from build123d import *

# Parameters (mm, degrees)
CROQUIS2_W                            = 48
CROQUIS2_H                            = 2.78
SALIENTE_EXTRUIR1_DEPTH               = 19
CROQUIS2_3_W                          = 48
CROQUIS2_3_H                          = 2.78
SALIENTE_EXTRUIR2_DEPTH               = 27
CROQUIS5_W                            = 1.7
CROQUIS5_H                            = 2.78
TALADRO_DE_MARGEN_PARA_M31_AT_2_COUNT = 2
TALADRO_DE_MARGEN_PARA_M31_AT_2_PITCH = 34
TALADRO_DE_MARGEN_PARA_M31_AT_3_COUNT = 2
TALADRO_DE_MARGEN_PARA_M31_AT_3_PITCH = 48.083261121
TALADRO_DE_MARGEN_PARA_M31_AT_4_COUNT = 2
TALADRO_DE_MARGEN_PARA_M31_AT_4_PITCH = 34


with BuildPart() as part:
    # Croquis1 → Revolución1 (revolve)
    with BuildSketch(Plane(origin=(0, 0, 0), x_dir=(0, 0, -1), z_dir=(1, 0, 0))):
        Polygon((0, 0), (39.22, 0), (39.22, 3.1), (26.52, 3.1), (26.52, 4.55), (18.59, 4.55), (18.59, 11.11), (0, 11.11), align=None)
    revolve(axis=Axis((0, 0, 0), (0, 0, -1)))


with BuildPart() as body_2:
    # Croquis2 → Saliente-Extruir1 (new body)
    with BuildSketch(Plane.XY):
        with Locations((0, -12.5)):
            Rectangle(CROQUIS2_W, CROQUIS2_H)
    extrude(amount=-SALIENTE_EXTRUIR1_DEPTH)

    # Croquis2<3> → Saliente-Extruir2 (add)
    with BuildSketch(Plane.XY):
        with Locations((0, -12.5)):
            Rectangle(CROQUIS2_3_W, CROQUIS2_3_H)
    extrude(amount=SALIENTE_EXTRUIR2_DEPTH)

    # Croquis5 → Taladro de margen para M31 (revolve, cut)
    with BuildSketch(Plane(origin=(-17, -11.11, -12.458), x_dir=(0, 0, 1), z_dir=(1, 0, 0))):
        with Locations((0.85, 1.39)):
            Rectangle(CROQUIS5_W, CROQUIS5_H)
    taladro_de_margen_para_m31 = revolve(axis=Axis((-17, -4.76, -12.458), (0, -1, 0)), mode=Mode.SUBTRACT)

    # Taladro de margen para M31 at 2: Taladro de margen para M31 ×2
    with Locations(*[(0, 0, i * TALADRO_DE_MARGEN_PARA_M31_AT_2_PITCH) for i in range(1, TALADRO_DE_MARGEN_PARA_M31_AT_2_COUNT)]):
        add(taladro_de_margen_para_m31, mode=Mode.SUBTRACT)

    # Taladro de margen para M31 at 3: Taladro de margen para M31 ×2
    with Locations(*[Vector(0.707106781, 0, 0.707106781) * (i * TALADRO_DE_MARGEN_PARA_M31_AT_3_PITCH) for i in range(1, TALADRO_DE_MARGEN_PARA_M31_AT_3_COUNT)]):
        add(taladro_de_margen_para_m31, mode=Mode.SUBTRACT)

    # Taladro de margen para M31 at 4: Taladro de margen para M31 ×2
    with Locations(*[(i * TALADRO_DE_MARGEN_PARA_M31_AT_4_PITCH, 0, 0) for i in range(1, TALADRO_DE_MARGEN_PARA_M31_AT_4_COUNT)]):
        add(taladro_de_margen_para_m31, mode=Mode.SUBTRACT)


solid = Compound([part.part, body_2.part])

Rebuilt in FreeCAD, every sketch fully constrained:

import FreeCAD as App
import Part
import Sketcher


def add_polygon(sketch, points):
    """Adds a closed chain of lines whose ends are joined by coincident constraints."""
    first, n = sketch.GeometryCount, len(points)
    for a, b in zip(points, points[1:] + points[:1]):
        sketch.addGeometry(Part.LineSegment(App.Vector(*a, 0), App.Vector(*b, 0)), False)
    for i in range(n):
        sketch.addConstraint(Sketcher.Constraint("Coincident", first + i, 2, first + (i + 1) % n, 1))

doc = App.newDocument("Part")
params = doc.addObject("Spreadsheet::Sheet", "Params")
for row, (alias, value) in enumerate([
    ("sketch1_width", "3.1 mm"),
    ("sketch1_height", "12.7 mm"),
    ("sketch1_width2", "1.45 mm"),
    ("sketch1_width3", "6.56 mm"),
    ("sketch1_height2", "39.22 mm"),
    ("revolution_angle", "360 deg"),
    ("sketch2_width", "48 mm"),
    ("sketch2_height", "2.78 mm"),
    ("pad1_length", "19 mm"),
    ("sketch3_width", "48 mm"),
    ("sketch3_height", "2.78 mm"),
    ("pad2_length", "27 mm"),
    ("sketch4_height", "1.7 mm"),
    ("sketch4_width", "2.78 mm"),
    ("groove_angle", "360 deg"),
    ("linearpattern_pitch", "34 mm"),
    ("linearpattern2_pitch", "48.083261 mm"),
    ("linearpattern3_pitch", "34 mm"),
], start=1):
    params.set(f"A{row}", alias)
    params.set(f"B{row}", "=" + value)
    params.setAlias(f"B{row}", alias)

body = doc.addObject("PartDesign::Body", "Body")

# Sketch on YZ plane
sketch1 = body.newObject("Sketcher::SketchObject", "Sketch")
sketch1.AttachmentSupport = (doc.getObject("YZ_Plane"), [""])
sketch1.MapMode = "FlatFace"
add_polygon(sketch1, [(0, 0), (0, -39.2), (3.1, -39.2), (3.1, -26.5), (4.5, -26.5), (4.5, -18.6), (11.1, -18.6), (11.1, 0)])  # lines 0-7
sketch1.addConstraint(Sketcher.Constraint("Vertical", 0))
sketch1.addConstraint(Sketcher.Constraint("Horizontal", 1))
sketch1.addConstraint(Sketcher.Constraint("Vertical", 2))
sketch1.addConstraint(Sketcher.Constraint("Horizontal", 3))
sketch1.addConstraint(Sketcher.Constraint("Vertical", 4))
sketch1.addConstraint(Sketcher.Constraint("Horizontal", 5))
sketch1.addConstraint(Sketcher.Constraint("Vertical", 6))
sketch1.addConstraint(Sketcher.Constraint("Horizontal", 7))
sketch1.addConstraint(Sketcher.Constraint("Coincident", 7, 2, -1, 1))
sketch1.addConstraint(Sketcher.Constraint("DistanceX", 1, 1, 1, 2, 3.1))
sketch1.addConstraint(Sketcher.Constraint("DistanceY", 2, 1, 2, 2, 12.7))
sketch1.addConstraint(Sketcher.Constraint("DistanceX", 3, 1, 3, 2, 1.45))
sketch1.addConstraint(Sketcher.Constraint("DistanceX", 5, 1, 5, 2, 6.56))
sketch1.addConstraint(Sketcher.Constraint("DistanceY", 0, 2, 0, 1, 39.22))
sketch1.addConstraint(Sketcher.Constraint("DistanceY", 4, 1, 4, 2, 7.93))
sketch1.setExpression("Constraints[17]", "Params.sketch1_width")
sketch1.setExpression("Constraints[18]", "Params.sketch1_height")
sketch1.setExpression("Constraints[19]", "Params.sketch1_width2")
sketch1.setExpression("Constraints[20]", "Params.sketch1_width3")
sketch1.setExpression("Constraints[21]", "Params.sketch1_height2")
revolution = body.newObject("PartDesign::Revolution", "Revolution")
revolution.Profile = sketch1
revolution.ReferenceAxis = (sketch1, ["V_Axis"])
revolution.setExpression("Angle", "Params.revolution_angle")
body2 = doc.addObject("PartDesign::Body", "Body001")

# Sketch on XY plane
sketch2 = body2.newObject("Sketcher::SketchObject", "Sketch001")
sketch2.AttachmentSupport = (doc.getObject("XY_Plane001"), [""])
sketch2.MapMode = "FlatFace"
add_polygon(sketch2, [(-24, -11.1), (-24, -13.9), (24, -13.9), (24, -11.1)])  # lines 0-3
sketch2.addConstraint(Sketcher.Constraint("Vertical", 0))
sketch2.addConstraint(Sketcher.Constraint("Horizontal", 1))
sketch2.addConstraint(Sketcher.Constraint("Vertical", 2))
sketch2.addConstraint(Sketcher.Constraint("Horizontal", 3))
sketch2.addConstraint(Sketcher.Constraint("DistanceX", 1, 1, 1, 2, 48.0))
sketch2.addConstraint(Sketcher.Constraint("DistanceX", 0, 2, -1, 1, 24.0))
sketch2.addConstraint(Sketcher.Constraint("DistanceY", 0, 2, 0, 1, 2.78))
sketch2.addConstraint(Sketcher.Constraint("DistanceY", 0, 2, -1, 1, 13.89))
sketch2.setExpression("Constraints[8]", "Params.sketch2_width")
sketch2.setExpression("Constraints[10]", "Params.sketch2_height")
pad1 = body2.newObject("PartDesign::Pad", "Pad")
pad1.Profile = sketch2
pad1.setExpression("Length", "Params.pad1_length")
pad1.Reversed = True

# Sketch on XY plane
sketch3 = body2.newObject("Sketcher::SketchObject", "Sketch002")
sketch3.AttachmentSupport = (doc.getObject("XY_Plane001"), [""])
sketch3.MapMode = "FlatFace"
add_polygon(sketch3, [(-24, -11.1), (-24, -13.9), (24, -13.9), (24, -11.1)])  # lines 0-3
sketch3.addConstraint(Sketcher.Constraint("Vertical", 0))
sketch3.addConstraint(Sketcher.Constraint("Horizontal", 1))
sketch3.addConstraint(Sketcher.Constraint("Vertical", 2))
sketch3.addConstraint(Sketcher.Constraint("Horizontal", 3))
sketch3.addConstraint(Sketcher.Constraint("DistanceX", 1, 1, 1, 2, 48.0))
sketch3.addConstraint(Sketcher.Constraint("DistanceX", 0, 2, -1, 1, 24.0))
sketch3.addConstraint(Sketcher.Constraint("DistanceY", 0, 2, 0, 1, 2.78))
sketch3.addConstraint(Sketcher.Constraint("DistanceY", 0, 2, -1, 1, 13.89))
sketch3.setExpression("Constraints[8]", "Params.sketch3_width")
sketch3.setExpression("Constraints[10]", "Params.sketch3_height")
pad2 = body2.newObject("PartDesign::Pad", "Pad001")
pad2.Profile = sketch3
pad2.setExpression("Length", "Params.pad2_length")

# Sketch on YZ plane
sketch4 = body2.newObject("Sketcher::SketchObject", "Sketch003")
sketch4.AttachmentSupport = (doc.getObject("YZ_Plane001"), [""])
sketch4.MapMode = "FlatFace"
sketch4.AttachmentOffset = App.Placement(App.Vector(0, 0, -17), App.Rotation())
add_polygon(sketch4, [(-13.9, -12.5), (-11.1, -12.5), (-11.1, -10.8), (-13.9, -10.8)])  # lines 0-3
sketch4.addGeometry(Part.LineSegment(App.Vector(-11.1, -12.5, 0), App.Vector(-13.9, -12.5, 0)), True)  # axis
sketch4.addConstraint(Sketcher.Constraint("Horizontal", 0))
sketch4.addConstraint(Sketcher.Constraint("Vertical", 1))
sketch4.addConstraint(Sketcher.Constraint("Horizontal", 2))
sketch4.addConstraint(Sketcher.Constraint("Vertical", 3))
sketch4.addConstraint(Sketcher.Constraint("Horizontal", 4))
sketch4.addConstraint(Sketcher.Constraint("Coincident", 4, 1, 0, 2))
sketch4.addConstraint(Sketcher.Constraint("Vertical", 2, 2, 4, 2))
sketch4.addConstraint(Sketcher.Constraint("DistanceY", 1, 1, 1, 2, 1.7))
sketch4.addConstraint(Sketcher.Constraint("DistanceX", 0, 1, 0, 2, 2.78))
sketch4.addConstraint(Sketcher.Constraint("DistanceX", 0, 2, -1, 1, 11.11))
sketch4.addConstraint(Sketcher.Constraint("DistanceY", 0, 2, -1, 1, 12.458))
sketch4.setExpression("Constraints[11]", "Params.sketch4_height")
sketch4.setExpression("Constraints[12]", "Params.sketch4_width")
groove = body2.newObject("PartDesign::Groove", "Groove")
groove.Profile = sketch4
groove.ReferenceAxis = (sketch4, ["Axis0"])
groove.setExpression("Angle", "Params.groove_angle")
doc.recompute()

linearpattern = body2.newObject("PartDesign::LinearPattern", "LinearPattern")
linearpattern.Originals = [groove]
linearpattern.Direction = (doc.getObject("Z_Axis001"), [""])
linearpattern.Mode = "offset"
linearpattern.setExpression("Offset", "Params.linearpattern_pitch")
linearpattern.Occurrences = 2
body2.Tip = linearpattern
doc.recompute()

datumline = body2.newObject("PartDesign::Line", "DatumLine")
datumline.Placement = App.Placement(App.Vector(0, 0, 0), App.Rotation(App.Vector(0, 0, 1), App.Vector(0.707106781, 0, 0.707106781)))
linearpattern2 = body2.newObject("PartDesign::LinearPattern", "LinearPattern001")
linearpattern2.Originals = [groove]
linearpattern2.Direction = (datumline, [""])
linearpattern2.Mode = "offset"
linearpattern2.setExpression("Offset", "Params.linearpattern2_pitch")
linearpattern2.Occurrences = 2
body2.Tip = linearpattern2
doc.recompute()

linearpattern3 = body2.newObject("PartDesign::LinearPattern", "LinearPattern002")
linearpattern3.Originals = [groove]
linearpattern3.Direction = (doc.getObject("X_Axis001"), [""])
linearpattern3.Mode = "offset"
linearpattern3.setExpression("Offset", "Params.linearpattern3_pitch")
linearpattern3.Occurrences = 2
body2.Tip = linearpattern3

doc.recompute()
